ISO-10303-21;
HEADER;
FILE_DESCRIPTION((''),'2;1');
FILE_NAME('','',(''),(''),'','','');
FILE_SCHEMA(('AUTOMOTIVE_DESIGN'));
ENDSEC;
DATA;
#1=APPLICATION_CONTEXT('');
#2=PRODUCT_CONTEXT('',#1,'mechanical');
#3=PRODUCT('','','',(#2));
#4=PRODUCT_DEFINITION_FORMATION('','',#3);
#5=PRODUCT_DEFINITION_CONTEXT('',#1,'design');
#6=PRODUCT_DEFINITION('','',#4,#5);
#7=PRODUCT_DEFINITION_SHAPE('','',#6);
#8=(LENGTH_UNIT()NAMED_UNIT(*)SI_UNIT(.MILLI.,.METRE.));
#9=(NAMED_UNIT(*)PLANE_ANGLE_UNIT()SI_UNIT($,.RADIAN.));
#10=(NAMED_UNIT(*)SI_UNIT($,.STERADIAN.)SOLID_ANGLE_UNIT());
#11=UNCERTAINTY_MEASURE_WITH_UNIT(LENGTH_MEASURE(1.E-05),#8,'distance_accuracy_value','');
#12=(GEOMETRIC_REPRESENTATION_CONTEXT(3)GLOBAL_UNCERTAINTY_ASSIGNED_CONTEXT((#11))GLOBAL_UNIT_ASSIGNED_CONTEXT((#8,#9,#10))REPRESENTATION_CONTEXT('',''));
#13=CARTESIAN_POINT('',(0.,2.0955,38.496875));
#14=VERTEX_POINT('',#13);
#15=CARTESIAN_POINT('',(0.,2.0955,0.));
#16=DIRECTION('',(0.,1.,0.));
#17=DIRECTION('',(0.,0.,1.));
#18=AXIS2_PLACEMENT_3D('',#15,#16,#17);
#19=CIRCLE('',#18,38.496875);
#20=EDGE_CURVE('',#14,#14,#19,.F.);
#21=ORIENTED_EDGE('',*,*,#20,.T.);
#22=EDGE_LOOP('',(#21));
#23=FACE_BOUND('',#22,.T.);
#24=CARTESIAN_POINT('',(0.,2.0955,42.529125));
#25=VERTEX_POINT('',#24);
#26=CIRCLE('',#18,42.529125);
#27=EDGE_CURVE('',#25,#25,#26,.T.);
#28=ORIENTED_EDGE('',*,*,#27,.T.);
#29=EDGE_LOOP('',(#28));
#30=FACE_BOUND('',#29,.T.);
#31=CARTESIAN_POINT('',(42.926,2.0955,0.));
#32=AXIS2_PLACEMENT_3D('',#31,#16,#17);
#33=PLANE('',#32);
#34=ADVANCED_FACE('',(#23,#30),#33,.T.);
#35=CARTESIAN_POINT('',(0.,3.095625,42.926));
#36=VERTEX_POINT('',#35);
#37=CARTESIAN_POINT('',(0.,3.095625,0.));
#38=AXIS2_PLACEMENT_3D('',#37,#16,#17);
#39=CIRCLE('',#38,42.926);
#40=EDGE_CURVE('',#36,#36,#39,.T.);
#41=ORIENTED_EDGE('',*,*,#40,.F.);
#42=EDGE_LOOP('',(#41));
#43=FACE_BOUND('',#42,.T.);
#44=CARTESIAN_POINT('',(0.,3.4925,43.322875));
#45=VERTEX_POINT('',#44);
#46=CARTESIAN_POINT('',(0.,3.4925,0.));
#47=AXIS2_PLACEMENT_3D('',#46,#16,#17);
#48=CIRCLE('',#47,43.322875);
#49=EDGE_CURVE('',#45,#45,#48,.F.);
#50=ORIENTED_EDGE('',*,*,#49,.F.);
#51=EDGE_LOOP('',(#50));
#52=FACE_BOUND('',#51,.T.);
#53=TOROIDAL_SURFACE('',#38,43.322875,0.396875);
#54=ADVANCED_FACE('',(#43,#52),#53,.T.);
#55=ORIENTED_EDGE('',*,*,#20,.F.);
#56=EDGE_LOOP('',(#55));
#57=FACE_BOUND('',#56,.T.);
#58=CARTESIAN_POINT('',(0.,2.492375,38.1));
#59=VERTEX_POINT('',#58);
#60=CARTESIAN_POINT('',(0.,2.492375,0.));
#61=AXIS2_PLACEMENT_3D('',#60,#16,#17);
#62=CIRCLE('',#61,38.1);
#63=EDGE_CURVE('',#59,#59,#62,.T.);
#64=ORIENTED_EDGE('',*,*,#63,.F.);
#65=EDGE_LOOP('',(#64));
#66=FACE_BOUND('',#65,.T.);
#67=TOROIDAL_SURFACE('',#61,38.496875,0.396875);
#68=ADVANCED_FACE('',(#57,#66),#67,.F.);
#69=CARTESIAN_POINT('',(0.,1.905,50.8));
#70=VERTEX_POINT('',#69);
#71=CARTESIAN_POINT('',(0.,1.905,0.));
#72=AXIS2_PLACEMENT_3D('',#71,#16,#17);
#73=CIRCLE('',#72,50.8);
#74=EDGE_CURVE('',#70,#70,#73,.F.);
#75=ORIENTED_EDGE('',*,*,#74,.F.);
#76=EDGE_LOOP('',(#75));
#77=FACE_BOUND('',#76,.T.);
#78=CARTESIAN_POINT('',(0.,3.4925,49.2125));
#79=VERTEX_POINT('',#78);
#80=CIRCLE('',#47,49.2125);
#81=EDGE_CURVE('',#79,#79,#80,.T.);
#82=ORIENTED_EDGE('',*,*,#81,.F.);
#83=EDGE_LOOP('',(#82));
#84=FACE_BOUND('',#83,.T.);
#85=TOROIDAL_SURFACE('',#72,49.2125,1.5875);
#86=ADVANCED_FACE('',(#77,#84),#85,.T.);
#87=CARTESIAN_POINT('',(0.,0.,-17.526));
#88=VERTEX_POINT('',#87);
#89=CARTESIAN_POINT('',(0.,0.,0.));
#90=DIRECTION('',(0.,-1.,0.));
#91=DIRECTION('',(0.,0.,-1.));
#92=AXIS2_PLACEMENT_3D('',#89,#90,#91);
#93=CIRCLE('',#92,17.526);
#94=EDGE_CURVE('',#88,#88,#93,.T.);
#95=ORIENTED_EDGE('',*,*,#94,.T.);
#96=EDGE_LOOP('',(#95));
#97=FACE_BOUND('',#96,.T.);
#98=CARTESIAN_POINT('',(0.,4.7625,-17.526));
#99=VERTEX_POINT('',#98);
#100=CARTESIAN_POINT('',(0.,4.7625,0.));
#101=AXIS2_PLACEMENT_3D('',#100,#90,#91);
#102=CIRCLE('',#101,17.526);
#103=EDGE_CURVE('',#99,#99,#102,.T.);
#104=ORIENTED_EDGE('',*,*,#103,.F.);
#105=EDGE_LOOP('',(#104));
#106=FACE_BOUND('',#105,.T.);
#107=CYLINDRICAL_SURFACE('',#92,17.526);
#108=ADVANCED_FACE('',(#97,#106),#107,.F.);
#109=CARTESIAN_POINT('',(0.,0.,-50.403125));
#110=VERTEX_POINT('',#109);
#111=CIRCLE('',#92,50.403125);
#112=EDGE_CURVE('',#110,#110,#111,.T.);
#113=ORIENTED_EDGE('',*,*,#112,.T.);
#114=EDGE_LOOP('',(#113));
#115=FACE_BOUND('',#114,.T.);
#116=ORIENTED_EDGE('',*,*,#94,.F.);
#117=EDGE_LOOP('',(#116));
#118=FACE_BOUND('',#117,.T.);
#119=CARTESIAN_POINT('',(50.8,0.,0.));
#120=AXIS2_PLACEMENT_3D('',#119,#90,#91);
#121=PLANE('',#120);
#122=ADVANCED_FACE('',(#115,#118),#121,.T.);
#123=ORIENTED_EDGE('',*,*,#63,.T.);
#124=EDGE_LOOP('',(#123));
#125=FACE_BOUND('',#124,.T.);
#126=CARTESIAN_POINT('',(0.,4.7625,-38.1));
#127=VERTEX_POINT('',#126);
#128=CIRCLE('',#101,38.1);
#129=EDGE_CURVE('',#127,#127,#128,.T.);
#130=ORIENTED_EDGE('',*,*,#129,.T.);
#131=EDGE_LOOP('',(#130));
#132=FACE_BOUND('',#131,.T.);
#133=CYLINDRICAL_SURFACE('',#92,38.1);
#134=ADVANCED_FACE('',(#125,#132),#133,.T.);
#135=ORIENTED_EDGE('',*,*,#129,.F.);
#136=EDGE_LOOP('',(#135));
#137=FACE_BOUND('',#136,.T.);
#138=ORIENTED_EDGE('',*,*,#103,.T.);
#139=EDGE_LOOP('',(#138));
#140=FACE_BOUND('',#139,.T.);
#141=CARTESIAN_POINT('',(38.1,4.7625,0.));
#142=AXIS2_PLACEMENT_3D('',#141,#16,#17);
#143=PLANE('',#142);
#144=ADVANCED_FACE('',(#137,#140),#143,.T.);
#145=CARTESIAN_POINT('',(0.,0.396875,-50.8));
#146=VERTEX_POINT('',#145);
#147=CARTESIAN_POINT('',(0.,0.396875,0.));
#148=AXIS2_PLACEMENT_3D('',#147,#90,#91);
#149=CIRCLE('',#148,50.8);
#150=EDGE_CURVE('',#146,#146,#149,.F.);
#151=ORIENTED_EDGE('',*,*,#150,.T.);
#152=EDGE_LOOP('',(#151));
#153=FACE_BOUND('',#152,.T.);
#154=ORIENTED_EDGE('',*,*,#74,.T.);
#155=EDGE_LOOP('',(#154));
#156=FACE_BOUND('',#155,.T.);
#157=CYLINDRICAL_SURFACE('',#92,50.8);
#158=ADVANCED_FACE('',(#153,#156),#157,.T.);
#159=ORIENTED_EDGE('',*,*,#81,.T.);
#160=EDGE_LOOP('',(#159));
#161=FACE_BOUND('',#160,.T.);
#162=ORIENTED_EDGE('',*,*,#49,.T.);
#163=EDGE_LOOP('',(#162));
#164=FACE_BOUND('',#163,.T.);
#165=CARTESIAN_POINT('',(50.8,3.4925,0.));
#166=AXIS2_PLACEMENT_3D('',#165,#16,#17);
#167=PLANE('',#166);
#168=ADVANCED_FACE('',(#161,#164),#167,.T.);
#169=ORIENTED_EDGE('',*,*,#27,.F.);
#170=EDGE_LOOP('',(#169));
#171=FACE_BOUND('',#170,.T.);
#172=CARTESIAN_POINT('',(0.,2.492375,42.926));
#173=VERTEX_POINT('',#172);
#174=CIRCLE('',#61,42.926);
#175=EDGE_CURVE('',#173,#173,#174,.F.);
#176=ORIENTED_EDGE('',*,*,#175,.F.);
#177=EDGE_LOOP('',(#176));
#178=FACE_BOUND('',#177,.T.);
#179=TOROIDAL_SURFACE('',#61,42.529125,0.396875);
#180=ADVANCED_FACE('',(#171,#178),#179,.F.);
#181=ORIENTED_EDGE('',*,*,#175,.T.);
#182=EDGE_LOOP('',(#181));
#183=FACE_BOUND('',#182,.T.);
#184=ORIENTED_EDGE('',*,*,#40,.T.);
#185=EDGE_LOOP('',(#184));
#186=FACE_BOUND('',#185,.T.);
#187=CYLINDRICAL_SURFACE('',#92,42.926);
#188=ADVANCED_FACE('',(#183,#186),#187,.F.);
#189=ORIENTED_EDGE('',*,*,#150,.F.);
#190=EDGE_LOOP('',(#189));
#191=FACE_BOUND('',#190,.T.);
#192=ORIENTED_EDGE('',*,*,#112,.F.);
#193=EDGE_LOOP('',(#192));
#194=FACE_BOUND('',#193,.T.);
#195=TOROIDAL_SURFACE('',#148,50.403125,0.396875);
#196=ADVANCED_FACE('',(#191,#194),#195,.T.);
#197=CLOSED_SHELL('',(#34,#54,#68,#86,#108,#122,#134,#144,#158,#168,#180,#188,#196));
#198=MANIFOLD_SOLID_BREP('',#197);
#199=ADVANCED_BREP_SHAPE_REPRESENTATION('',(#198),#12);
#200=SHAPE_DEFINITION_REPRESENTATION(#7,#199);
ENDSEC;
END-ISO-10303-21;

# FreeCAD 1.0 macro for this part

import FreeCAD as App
import Part
import Sketcher

V = App.Vector
Q = App.Units.Quantity


def edges_at(feature, points):
    """Names of the edges that pass closest to the given points."""
    edges = feature.Shape.Edges
    near = lambda p: min(range(len(edges)), key=lambda i: edges[i].distToShape(Part.Vertex(*p))[0])
    return sorted({f"Edge{near(p) + 1}" for p in points})


def add_polygon(sketch, points):
    """Adds a closed chain of lines whose ends are joined by coincident constraints."""
    first, n = sketch.GeometryCount, len(points)
    for a, b in zip(points, points[1:] + points[:1]):
        sketch.addGeometry(Part.LineSegment(App.Vector(*a, 0), App.Vector(*b, 0)), False)
    for i in range(n):
        sketch.addConstraint(Sketcher.Constraint("Coincident", first + i, 2, first + (i + 1) % n, 1))

doc = App.newDocument("Part")
body = doc.addObject("PartDesign::Body", "Body")

# Sketch on XY plane
sketch1 = doc.addObject("Sketcher::SketchObject", "Sketch")
body.addObject(sketch1)
sketch1.AttachmentSupport = (doc.XY_Plane, [""])
sketch1.MapMode = "FlatFace"
add_polygon(sketch1, [(17.5, 4.8), (17.5, 0), (50.8, 0), (50.8, 3.5), (42.9, 3.5), (42.9, 2.1), (38.1, 2.1), (38.1, 4.8)])  # lines 0-7
sketch1.addConstraint([
    Sketcher.Constraint("Vertical", 0),
    Sketcher.Constraint("Horizontal", 1),
    Sketcher.Constraint("Vertical", 2),
    Sketcher.Constraint("Horizontal", 3),
    Sketcher.Constraint("Vertical", 4),
    Sketcher.Constraint("Horizontal", 5),
    Sketcher.Constraint("Vertical", 6),
    Sketcher.Constraint("Horizontal", 7),
    Sketcher.Constraint("PointOnObject", 0, 2, -1),
    Sketcher.Constraint("DistanceX", -1, 1, 1, 2, Q("2 in")),
    Sketcher.Constraint("DistanceX", 0, 2, 3, 2, Q("1 in")),
    Sketcher.Constraint("DistanceX", 1, 1, 1, 2, Q("1.31 in")),
    Sketcher.Constraint("DistanceX", 5, 2, 5, 1, Q("0.19 in")),
    Sketcher.Constraint("DistanceY", 0, 2, 0, 1, Q("0.1875 in")),
    Sketcher.Constraint("DistanceY", 4, 2, 4, 1, Q("0.055 in")),
    Sketcher.Constraint("DistanceY", 6, 1, 6, 2, Q("0.105 in")),
])
revolution = doc.addObject("PartDesign::Revolution", "Revolution")
body.addObject(revolution)
revolution.Profile = sketch1
revolution.ReferenceAxis = (sketch1, ["V_Axis"])
revolution.Angle = 360
doc.recompute()

fillet = doc.addObject("PartDesign::Fillet", "Fillet")
body.addObject(fillet)
fillet.Base = (revolution, edges_at(revolution, [
    (0, 0, 50.8),
    (0, 3.493, 42.926),
    (0, 2.095, 42.926),
    (0, 2.095, 38.1),
]))
fillet.Radius = Q("0.015625 in")
doc.recompute()

fillet2 = doc.addObject("PartDesign::Fillet", "Fillet001")
body.addObject(fillet2)
fillet2.Base = (fillet, edges_at(fillet, [(0, 3.493, 50.8)]))
fillet2.Radius = Q("0.0625 in")

doc.recompute()
